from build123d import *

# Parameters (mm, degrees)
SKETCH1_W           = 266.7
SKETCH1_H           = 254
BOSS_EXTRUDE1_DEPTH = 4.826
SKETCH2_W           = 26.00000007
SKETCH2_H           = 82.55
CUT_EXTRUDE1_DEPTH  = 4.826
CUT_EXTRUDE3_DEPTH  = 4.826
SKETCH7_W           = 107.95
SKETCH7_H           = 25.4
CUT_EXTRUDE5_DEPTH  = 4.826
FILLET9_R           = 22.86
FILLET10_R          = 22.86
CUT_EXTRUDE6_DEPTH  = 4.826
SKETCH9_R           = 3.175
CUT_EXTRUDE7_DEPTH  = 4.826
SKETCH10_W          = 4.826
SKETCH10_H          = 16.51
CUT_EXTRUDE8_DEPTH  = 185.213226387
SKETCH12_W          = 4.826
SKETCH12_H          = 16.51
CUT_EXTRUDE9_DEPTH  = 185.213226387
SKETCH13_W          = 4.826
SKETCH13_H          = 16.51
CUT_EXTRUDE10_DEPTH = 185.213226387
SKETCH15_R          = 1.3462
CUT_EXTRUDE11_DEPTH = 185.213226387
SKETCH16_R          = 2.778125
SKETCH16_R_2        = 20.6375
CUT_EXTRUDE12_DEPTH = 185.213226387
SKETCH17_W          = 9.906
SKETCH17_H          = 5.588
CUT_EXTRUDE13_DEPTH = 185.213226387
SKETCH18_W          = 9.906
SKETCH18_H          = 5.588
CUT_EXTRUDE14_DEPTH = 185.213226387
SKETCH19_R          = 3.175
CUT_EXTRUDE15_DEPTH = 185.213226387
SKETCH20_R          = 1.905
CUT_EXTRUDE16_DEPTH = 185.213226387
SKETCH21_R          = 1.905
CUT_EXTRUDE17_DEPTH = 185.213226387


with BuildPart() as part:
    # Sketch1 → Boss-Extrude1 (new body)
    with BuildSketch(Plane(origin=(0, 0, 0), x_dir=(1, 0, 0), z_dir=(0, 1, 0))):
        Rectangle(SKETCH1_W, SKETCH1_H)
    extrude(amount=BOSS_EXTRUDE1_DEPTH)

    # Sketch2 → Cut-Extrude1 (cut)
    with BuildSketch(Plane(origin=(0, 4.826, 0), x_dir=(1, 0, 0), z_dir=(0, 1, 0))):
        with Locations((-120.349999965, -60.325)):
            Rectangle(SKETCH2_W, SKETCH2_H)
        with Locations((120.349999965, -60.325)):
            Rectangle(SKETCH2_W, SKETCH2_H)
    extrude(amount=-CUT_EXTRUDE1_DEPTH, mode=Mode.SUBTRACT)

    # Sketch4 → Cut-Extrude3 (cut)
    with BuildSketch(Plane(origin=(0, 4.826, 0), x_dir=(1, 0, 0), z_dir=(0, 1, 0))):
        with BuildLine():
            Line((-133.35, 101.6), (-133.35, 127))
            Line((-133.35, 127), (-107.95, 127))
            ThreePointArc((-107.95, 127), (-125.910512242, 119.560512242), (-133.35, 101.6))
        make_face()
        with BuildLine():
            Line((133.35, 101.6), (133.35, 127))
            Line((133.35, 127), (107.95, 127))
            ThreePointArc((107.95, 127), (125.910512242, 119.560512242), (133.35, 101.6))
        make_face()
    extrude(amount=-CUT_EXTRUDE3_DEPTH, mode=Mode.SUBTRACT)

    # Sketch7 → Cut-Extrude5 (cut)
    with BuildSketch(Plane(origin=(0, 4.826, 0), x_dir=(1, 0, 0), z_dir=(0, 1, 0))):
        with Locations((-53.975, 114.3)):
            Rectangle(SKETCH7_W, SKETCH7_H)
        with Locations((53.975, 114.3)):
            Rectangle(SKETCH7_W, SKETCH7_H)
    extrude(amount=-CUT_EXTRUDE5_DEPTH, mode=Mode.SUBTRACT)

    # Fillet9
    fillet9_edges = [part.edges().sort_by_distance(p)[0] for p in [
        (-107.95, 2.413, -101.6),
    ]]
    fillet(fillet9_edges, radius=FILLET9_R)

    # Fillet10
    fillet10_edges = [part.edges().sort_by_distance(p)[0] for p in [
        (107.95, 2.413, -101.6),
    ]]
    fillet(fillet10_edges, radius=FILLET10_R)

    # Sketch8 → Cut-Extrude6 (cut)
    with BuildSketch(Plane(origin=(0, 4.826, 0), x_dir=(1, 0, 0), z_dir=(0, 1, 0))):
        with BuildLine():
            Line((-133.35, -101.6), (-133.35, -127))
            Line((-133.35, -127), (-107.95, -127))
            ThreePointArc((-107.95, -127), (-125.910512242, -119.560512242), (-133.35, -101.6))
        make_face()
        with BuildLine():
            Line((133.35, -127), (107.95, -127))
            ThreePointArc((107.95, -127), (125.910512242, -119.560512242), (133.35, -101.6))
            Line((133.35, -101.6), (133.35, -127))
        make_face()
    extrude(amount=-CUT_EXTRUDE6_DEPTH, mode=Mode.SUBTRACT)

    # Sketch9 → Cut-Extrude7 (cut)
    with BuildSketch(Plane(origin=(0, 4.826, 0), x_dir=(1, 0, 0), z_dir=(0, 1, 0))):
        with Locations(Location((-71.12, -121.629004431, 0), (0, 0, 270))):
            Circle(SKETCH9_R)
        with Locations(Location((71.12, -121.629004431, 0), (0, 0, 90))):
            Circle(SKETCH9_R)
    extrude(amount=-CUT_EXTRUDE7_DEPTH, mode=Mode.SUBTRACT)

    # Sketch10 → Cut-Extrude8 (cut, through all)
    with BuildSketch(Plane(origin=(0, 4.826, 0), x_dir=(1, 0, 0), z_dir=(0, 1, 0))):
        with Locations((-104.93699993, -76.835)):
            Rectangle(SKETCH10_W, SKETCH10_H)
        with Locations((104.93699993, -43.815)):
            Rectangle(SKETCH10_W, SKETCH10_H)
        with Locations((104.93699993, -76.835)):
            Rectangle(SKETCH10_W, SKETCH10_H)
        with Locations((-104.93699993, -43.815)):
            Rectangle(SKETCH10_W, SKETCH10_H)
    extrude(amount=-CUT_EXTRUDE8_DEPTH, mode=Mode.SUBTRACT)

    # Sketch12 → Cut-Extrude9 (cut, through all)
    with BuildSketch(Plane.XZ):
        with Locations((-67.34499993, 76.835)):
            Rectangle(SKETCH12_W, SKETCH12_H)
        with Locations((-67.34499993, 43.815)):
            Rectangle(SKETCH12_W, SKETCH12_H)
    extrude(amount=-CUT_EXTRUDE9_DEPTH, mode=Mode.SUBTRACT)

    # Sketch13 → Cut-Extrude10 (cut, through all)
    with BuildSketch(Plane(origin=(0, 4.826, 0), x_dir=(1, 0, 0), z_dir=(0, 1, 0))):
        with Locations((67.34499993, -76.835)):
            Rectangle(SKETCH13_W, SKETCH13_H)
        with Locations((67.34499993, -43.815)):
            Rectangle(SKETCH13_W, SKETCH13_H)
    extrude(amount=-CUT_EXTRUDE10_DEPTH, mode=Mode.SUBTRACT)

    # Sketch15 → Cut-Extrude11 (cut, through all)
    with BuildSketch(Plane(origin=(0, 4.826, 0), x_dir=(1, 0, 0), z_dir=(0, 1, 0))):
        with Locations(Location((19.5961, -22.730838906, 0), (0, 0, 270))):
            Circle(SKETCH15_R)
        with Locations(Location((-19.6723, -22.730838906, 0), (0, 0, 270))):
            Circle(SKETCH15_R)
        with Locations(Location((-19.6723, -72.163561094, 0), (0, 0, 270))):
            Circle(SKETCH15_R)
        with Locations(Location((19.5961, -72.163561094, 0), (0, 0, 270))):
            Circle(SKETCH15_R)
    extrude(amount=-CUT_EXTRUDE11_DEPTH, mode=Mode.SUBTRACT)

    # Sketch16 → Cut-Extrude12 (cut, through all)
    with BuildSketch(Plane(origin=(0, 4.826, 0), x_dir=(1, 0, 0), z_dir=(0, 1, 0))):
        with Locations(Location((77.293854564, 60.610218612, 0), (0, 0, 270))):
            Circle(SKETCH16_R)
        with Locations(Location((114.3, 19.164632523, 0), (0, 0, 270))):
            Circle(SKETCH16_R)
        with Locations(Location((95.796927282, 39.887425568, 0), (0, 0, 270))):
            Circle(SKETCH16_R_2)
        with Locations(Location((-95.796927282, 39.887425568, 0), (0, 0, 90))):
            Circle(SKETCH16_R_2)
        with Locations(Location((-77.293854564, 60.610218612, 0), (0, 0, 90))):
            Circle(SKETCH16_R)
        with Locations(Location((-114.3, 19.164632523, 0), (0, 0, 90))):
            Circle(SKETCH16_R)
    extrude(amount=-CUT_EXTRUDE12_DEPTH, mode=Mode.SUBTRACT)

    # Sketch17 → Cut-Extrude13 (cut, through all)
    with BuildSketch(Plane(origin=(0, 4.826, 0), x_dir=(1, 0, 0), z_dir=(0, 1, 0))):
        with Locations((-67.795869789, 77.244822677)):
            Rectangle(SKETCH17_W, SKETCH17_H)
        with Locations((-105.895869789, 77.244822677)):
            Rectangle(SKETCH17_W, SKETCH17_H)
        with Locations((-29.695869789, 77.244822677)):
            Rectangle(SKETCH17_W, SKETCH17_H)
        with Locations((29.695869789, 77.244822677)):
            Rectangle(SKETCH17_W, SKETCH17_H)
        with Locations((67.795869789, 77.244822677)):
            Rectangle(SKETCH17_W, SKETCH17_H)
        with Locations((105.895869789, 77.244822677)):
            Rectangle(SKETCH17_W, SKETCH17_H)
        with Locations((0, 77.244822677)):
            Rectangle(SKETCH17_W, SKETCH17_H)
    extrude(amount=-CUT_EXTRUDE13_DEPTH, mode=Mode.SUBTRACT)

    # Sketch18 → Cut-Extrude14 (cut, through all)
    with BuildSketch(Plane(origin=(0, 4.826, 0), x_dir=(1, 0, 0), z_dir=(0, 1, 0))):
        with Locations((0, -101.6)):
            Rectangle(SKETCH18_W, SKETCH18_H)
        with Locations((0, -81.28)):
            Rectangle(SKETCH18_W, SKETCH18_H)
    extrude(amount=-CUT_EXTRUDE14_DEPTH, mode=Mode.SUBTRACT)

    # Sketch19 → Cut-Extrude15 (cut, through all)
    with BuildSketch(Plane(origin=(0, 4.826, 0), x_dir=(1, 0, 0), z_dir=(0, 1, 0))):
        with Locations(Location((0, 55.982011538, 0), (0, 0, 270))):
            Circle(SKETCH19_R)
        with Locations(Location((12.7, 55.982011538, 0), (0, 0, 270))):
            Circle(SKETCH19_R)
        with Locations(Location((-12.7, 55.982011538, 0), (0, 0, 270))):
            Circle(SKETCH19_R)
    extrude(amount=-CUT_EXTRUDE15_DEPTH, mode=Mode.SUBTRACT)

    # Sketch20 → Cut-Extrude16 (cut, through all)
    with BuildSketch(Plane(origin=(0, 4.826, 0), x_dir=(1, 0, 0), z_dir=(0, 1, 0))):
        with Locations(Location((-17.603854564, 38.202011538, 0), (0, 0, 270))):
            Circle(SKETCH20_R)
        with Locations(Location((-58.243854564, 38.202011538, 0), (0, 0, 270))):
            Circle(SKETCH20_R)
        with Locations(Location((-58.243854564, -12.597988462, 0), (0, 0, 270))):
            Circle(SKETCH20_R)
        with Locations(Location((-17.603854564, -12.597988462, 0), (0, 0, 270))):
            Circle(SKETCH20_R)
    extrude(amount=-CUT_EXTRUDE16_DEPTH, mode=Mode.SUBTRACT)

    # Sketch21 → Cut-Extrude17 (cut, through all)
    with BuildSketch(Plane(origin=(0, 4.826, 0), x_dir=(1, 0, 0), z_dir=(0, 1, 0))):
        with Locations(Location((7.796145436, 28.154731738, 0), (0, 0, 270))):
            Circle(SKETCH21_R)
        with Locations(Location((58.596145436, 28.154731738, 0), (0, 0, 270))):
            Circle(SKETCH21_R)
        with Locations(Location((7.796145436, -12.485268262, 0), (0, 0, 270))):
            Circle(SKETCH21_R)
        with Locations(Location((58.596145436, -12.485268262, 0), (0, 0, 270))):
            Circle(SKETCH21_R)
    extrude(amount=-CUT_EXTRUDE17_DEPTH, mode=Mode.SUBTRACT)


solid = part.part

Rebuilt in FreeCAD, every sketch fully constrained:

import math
import FreeCAD as App
import Part
import Sketcher

V = App.Vector
Q = App.Units.Quantity


def edges_at(feature, points):
    """Names of the edges that pass closest to the given points."""
    edges = feature.Shape.Edges
    near = lambda p: min(range(len(edges)), key=lambda i: edges[i].distToShape(Part.Vertex(*p))[0])
    return sorted({f"Edge{near(p) + 1}" for p in points})

doc = App.newDocument("Part")
body = doc.addObject("PartDesign::Body", "Body")

# Sketch on XZ plane
sketch1 = body.newObject("Sketcher::SketchObject", "Sketch")
sketch1.AttachmentSupport = (doc.getObject("XZ_Plane"), [""])
sketch1.MapMode = "FlatFace"
sketch1.addGeometry([
    Part.LineSegment(V(-133, -127, 0), V(-133, 127, 0)),
    Part.LineSegment(V(-133, 127, 0), V(133, 127, 0)),
    Part.LineSegment(V(133, 127, 0), V(133, -127, 0)),
    Part.LineSegment(V(133, -127, 0), V(-133, -127, 0)),
], False)
sketch1.addConstraint([
    Sketcher.Constraint("Coincident", 0, 2, 1, 1),
    Sketcher.Constraint("Coincident", 1, 2, 2, 1),
    Sketcher.Constraint("Coincident", 2, 2, 3, 1),
    Sketcher.Constraint("Coincident", 3, 2, 0, 1),
    Sketcher.Constraint("Vertical", 0),
    Sketcher.Constraint("Horizontal", 1),
    Sketcher.Constraint("Vertical", 2),
    Sketcher.Constraint("Horizontal", 3),
    Sketcher.Constraint("Symmetric", 0, 2, 2, 2, -1, 1),
    Sketcher.Constraint("DistanceY", 0, 1, 0, 2, Q("10 in")),
    Sketcher.Constraint("DistanceX", 1, 1, 1, 2, Q("10.5 in")),
])
pad1 = body.newObject("PartDesign::Pad", "Pad")
pad1.Profile = sketch1
pad1.Length = Q("0.19 in")
pad1.Reversed = True

# Sketch on XZ plane
sketch2 = body.newObject("Sketcher::SketchObject", "Sketch001")
sketch2.AttachmentSupport = (doc.getObject("XZ_Plane"), [""])
sketch2.MapMode = "FlatFace"
sketch2.AttachmentOffset = App.Placement(V(0, 0, -0.19 * 25.4), App.Rotation())
sketch2.addGeometry([
    Part.LineSegment(V(-133, 19, 0), V(-133, 102, 0)),  # 0
    Part.LineSegment(V(-133, 102, 0), V(-107, 102, 0)),  # 1
    Part.LineSegment(V(-107, 102, 0), V(-107, 19, 0)),  # 2
    Part.LineSegment(V(-107, 19, 0), V(-133, 19, 0)),  # 3
    Part.LineSegment(V(107, 19, 0), V(107, 102, 0)),  # 4
    Part.LineSegment(V(107, 102, 0), V(133, 102, 0)),  # 5
    Part.LineSegment(V(133, 102, 0), V(133, 19, 0)),  # 6
    Part.LineSegment(V(133, 19, 0), V(107, 19, 0)),  # 7
], False)
sketch2.addConstraint([
    Sketcher.Constraint("Coincident", 0, 2, 1, 1),
    Sketcher.Constraint("Coincident", 1, 2, 2, 1),
    Sketcher.Constraint("Coincident", 2, 2, 3, 1),
    Sketcher.Constraint("Coincident", 3, 2, 0, 1),
    Sketcher.Constraint("Coincident", 4, 2, 5, 1),
    Sketcher.Constraint("Coincident", 5, 2, 6, 1),
    Sketcher.Constraint("Coincident", 6, 2, 7, 1),
    Sketcher.Constraint("Coincident", 7, 2, 4, 1),
    Sketcher.Constraint("Vertical", 0),
    Sketcher.Constraint("Horizontal", 1),
    Sketcher.Constraint("Vertical", 2),
    Sketcher.Constraint("Horizontal", 3),
    Sketcher.Constraint("Vertical", 4),
    Sketcher.Constraint("Horizontal", 5),
    Sketcher.Constraint("Vertical", 6),
    Sketcher.Constraint("Horizontal", 7),
    Sketcher.Constraint("Symmetric", 1, 2, 4, 2, -2),
    Sketcher.Constraint("Symmetric", 3, 2, 6, 2, -2),
    Sketcher.Constraint("DistanceY", -1, 1, 0, 2, Q("4 in")),
    Sketcher.Constraint("DistanceY", 0, 1, 0, 2, Q("3.25 in")),
    Sketcher.Constraint("DistanceX", 0, 2, 5, 2, Q("10.5 in")),
    Sketcher.Constraint("DistanceX", 1, 1, 1, 2, Q("26 mm")),
])
pocket1 = body.newObject("PartDesign::Pocket", "Pocket")
pocket1.Profile = sketch2
pocket1.Length = Q("0.19 in")
pocket1.Reversed = True

# Sketch on XZ plane
sketch3 = body.newObject("Sketcher::SketchObject", "Sketch002")
sketch3.AttachmentSupport = (doc.getObject("XZ_Plane"), [""])
sketch3.MapMode = "FlatFace"
sketch3.AttachmentOffset = App.Placement(V(0, 0, -0.19 * 25.4), App.Rotation())
sketch3.addGeometry([
    Part.LineSegment(V(-133, -127, 0), V(-133, -102, 0)),  # 0
    Part.ArcOfCircle(Part.Circle(V(-108, -102, 0), V(0, 0, 1), 25), math.radians(180), math.radians(270)),  # 1
    Part.LineSegment(V(-108, -127, 0), V(-133, -127, 0)),  # 2
    Part.LineSegment(V(133, -102, 0), V(133, -127, 0)),  # 3
    Part.LineSegment(V(133, -127, 0), V(108, -127, 0)),  # 4
    Part.ArcOfCircle(Part.Circle(V(108, -102, 0), V(0, 0, 1), 25), math.radians(-90), math.radians(0)),  # 5
], False)
sketch3.addConstraint([
    Sketcher.Constraint("Tangent", 0, 2, 1, 1),
    Sketcher.Constraint("Tangent", 1, 2, 2, 1),
    Sketcher.Constraint("Coincident", 2, 2, 0, 1),
    Sketcher.Constraint("Coincident", 3, 2, 4, 1),
    Sketcher.Constraint("Tangent", 4, 2, 5, 1),
    Sketcher.Constraint("Tangent", 5, 2, 3, 1),
    Sketcher.Constraint("Vertical", 0),
    Sketcher.Constraint("Horizontal", 2),
    Sketcher.Constraint("Vertical", 3),
    Sketcher.Constraint("Horizontal", 4),
    Sketcher.Constraint("Equal", 1, 5),
    Sketcher.Constraint("Symmetric", 1, 3, 5, 3, -2),
    Sketcher.Constraint("Radius", 1, Q("1 in")),
    Sketcher.Constraint("DistanceY", 1, 3, -1, 1, Q("4 in")),
    Sketcher.Constraint("DistanceX", 1, 3, 5, 3, Q("8.5 in")),
])
pocket2 = body.newObject("PartDesign::Pocket", "Pocket001")
pocket2.Profile = sketch3
pocket2.Length = Q("0.19 in")
pocket2.Reversed = True

# Sketch on XZ plane
sketch4 = body.newObject("Sketcher::SketchObject", "Sketch003")
sketch4.AttachmentSupport = (doc.getObject("XZ_Plane"), [""])
sketch4.MapMode = "FlatFace"
sketch4.AttachmentOffset = App.Placement(V(0, 0, -0.19 * 25.4), App.Rotation())
sketch4.addGeometry([
    Part.LineSegment(V(-108, -127, 0), V(-108, -102, 0)),
    Part.LineSegment(V(-108, -102, 0), V(108, -102, 0)),
    Part.LineSegment(V(108, -102, 0), V(108, -127, 0)),
    Part.LineSegment(V(108, -127, 0), V(-108, -127, 0)),
], False)
sketch4.addConstraint([
    Sketcher.Constraint("Coincident", 0, 2, 1, 1),
    Sketcher.Constraint("Coincident", 1, 2, 2, 1),
    Sketcher.Constraint("Coincident", 2, 2, 3, 1),
    Sketcher.Constraint("Coincident", 3, 2, 0, 1),
    Sketcher.Constraint("Vertical", 0),
    Sketcher.Constraint("Horizontal", 1),
    Sketcher.Constraint("Vertical", 2),
    Sketcher.Constraint("Horizontal", 3),
    Sketcher.Constraint("DistanceY", 0, 1, 0, 2, Q("1 in")),
    Sketcher.Constraint("DistanceX", 1, 1, 1, 2, Q("8.5 in")),
    Sketcher.Constraint("DistanceY", 0, 2, -1, 1, Q("4 in")),
    Sketcher.Constraint("DistanceX", 0, 2, -1, 1, Q("4.25 in")),
])
pocket3 = body.newObject("PartDesign::Pocket", "Pocket002")
pocket3.Profile = sketch4
pocket3.Length = Q("0.19 in")
pocket3.Reversed = True
doc.recompute()

fillet = body.newObject("PartDesign::Fillet", "Fillet")
fillet.Base = (pocket3, edges_at(pocket3, [(-107.95, 2.413, -101.6)]))
fillet.Radius = Q("0.9 in")
doc.recompute()

fillet2 = body.newObject("PartDesign::Fillet", "Fillet001")
fillet2.Base = (fillet, edges_at(fillet, [(107.95, 2.413, -101.6)]))
fillet2.Radius = Q("0.9 in")

# Sketch on XZ plane
sketch5 = body.newObject("Sketcher::SketchObject", "Sketch004")
sketch5.AttachmentSupport = (doc.getObject("XZ_Plane"), [""])
sketch5.MapMode = "FlatFace"
sketch5.AttachmentOffset = App.Placement(V(0, 0, -0.19 * 25.4), App.Rotation())
sketch5.addGeometry([
    Part.LineSegment(V(-133, 102, 0), V(-133, 127, 0)),  # 0
    Part.LineSegment(V(-133, 127, 0), V(-108, 127, 0)),  # 1
    Part.ArcOfCircle(Part.Circle(V(-108, 102, 0), V(0, 0, 1), 25), math.radians(90), math.radians(180)),  # 2
    Part.LineSegment(V(108, 127, 0), V(133, 127, 0)),  # 3
    Part.LineSegment(V(133, 127, 0), V(133, 102, 0)),  # 4
    Part.ArcOfCircle(Part.Circle(V(108, 102, 0), V(0, 0, 1), 25), math.radians(0), math.radians(90)),  # 5
], False)
sketch5.addConstraint([
    Sketcher.Constraint("Coincident", 0, 2, 1, 1),
    Sketcher.Constraint("Tangent", 1, 2, 2, 1),
    Sketcher.Constraint("Tangent", 2, 2, 0, 1),
    Sketcher.Constraint("Coincident", 3, 2, 4, 1),
    Sketcher.Constraint("Tangent", 4, 2, 5, 1),
    Sketcher.Constraint("Tangent", 5, 2, 3, 1),
    Sketcher.Constraint("Vertical", 0),
    Sketcher.Constraint("Horizontal", 1),
    Sketcher.Constraint("Horizontal", 3),
    Sketcher.Constraint("Vertical", 4),
    Sketcher.Constraint("Equal", 2, 5),
    Sketcher.Constraint("Symmetric", 2, 3, 5, 3, -2),
    Sketcher.Constraint("Radius", 2, Q("1 in")),
    Sketcher.Constraint("DistanceY", -1, 1, 2, 3, Q("4 in")),
    Sketcher.Constraint("DistanceX", 2, 3, 5, 3, Q("8.5 in")),
])
pocket4 = body.newObject("PartDesign::Pocket", "Pocket003")
pocket4.Profile = sketch5
pocket4.Length = Q("0.19 in")
pocket4.Reversed = True

# Sketch on XZ plane
sketch6 = body.newObject("Sketcher::SketchObject", "Sketch005")
sketch6.AttachmentSupport = (doc.getObject("XZ_Plane"), [""])
sketch6.MapMode = "FlatFace"
sketch6.AttachmentOffset = App.Placement(V(0, 0, -0.19 * 25.4), App.Rotation())
sketch6.addGeometry([
    Part.Circle(V(-71.1, 121.6, 0), V(0, 0, 1), 3.2),
    Part.Circle(V(71.1, 121.6, 0), V(0, 0, 1), 3.2),
], False)
sketch6.addConstraint([
    Sketcher.Constraint("Equal", 0, 1),
    Sketcher.Constraint("Symmetric", 0, 3, 1, 3, -2),
    Sketcher.Constraint("Diameter", 0, Q("0.25 in")),
    Sketcher.Constraint("DistanceX", 0, 3, -1, 1, Q("2.8 in")),
    Sketcher.Constraint("DistanceY", -1, 1, 0, 3, Q("121.629004 mm")),
])
pocket5 = body.newObject("PartDesign::Pocket", "Pocket004")
pocket5.Profile = sketch6
pocket5.Length = Q("0.19 in")
pocket5.Reversed = True

# Sketch on XZ plane
sketch7 = body.newObject("Sketcher::SketchObject", "Sketch006")
sketch7.AttachmentSupport = (doc.getObject("XZ_Plane"), [""])
sketch7.MapMode = "FlatFace"
sketch7.AttachmentOffset = App.Placement(V(0, 0, -0.19 * 25.4), App.Rotation())
sketch7.addGeometry([
    Part.LineSegment(V(-107.3, 68.6, 0), V(-107.3, 85.1, 0)),  # 0
    Part.LineSegment(V(-107.3, 85.1, 0), V(-102.5, 85.1, 0)),  # 1
    Part.LineSegment(V(-102.5, 85.1, 0), V(-102.5, 68.6, 0)),  # 2
    Part.LineSegment(V(-102.5, 68.6, 0), V(-107.3, 68.6, 0)),  # 3
    Part.LineSegment(V(102.5, 35.6, 0), V(102.5, 52.1, 0)),  # 4
    Part.LineSegment(V(102.5, 52.1, 0), V(107.3, 52.1, 0)),  # 5
    Part.LineSegment(V(107.3, 52.1, 0), V(107.3, 35.6, 0)),  # 6
    Part.LineSegment(V(107.3, 35.6, 0), V(102.5, 35.6, 0)),  # 7
    Part.LineSegment(V(102.5, 68.6, 0), V(102.5, 85.1, 0)),  # 8
    Part.LineSegment(V(102.5, 85.1, 0), V(107.3, 85.1, 0)),  # 9
    Part.LineSegment(V(107.3, 85.1, 0), V(107.3, 68.6, 0)),  # 10
    Part.LineSegment(V(107.3, 68.6, 0), V(102.5, 68.6, 0)),  # 11
    Part.LineSegment(V(-107.3, 35.6, 0), V(-107.3, 52.1, 0)),  # 12
    Part.LineSegment(V(-107.3, 52.1, 0), V(-102.5, 52.1, 0)),  # 13
    Part.LineSegment(V(-102.5, 52.1, 0), V(-102.5, 35.6, 0)),  # 14
    Part.LineSegment(V(-102.5, 35.6, 0), V(-107.3, 35.6, 0)),  # 15
], False)
sketch7.addConstraint([
    Sketcher.Constraint("Coincident", 0, 2, 1, 1),
    Sketcher.Constraint("Coincident", 1, 2, 2, 1),
    Sketcher.Constraint("Coincident", 2, 2, 3, 1),
    Sketcher.Constraint("Coincident", 3, 2, 0, 1),
    Sketcher.Constraint("Coincident", 4, 2, 5, 1),
    Sketcher.Constraint("Coincident", 5, 2, 6, 1),
    Sketcher.Constraint("Coincident", 6, 2, 7, 1),
    Sketcher.Constraint("Coincident", 7, 2, 4, 1),
    Sketcher.Constraint("Coincident", 8, 2, 9, 1),
    Sketcher.Constraint("Coincident", 9, 2, 10, 1),
    Sketcher.Constraint("Coincident", 10, 2, 11, 1),
    Sketcher.Constraint("Coincident", 11, 2, 8, 1),
    Sketcher.Constraint("Coincident", 12, 2, 13, 1),
    Sketcher.Constraint("Coincident", 13, 2, 14, 1),
    Sketcher.Constraint("Coincident", 14, 2, 15, 1),
    Sketcher.Constraint("Coincident", 15, 2, 12, 1),
    Sketcher.Constraint("Vertical", 0),
    Sketcher.Constraint("Horizontal", 1),
    Sketcher.Constraint("Vertical", 2),
    Sketcher.Constraint("Horizontal", 3),
    Sketcher.Constraint("Vertical", 4),
    Sketcher.Constraint("Horizontal", 5),
    Sketcher.Constraint("Vertical", 6),
    Sketcher.Constraint("Horizontal", 7),
    Sketcher.Constraint("Vertical", 8),
    Sketcher.Constraint("Horizontal", 9),
    Sketcher.Constraint("Vertical", 10),
    Sketcher.Constraint("Horizontal", 11),
    Sketcher.Constraint("Vertical", 12),
    Sketcher.Constraint("Horizontal", 13),
    Sketcher.Constraint("Vertical", 14),
    Sketcher.Constraint("Horizontal", 15),
    Sketcher.Constraint("Symmetric", 1, 2, 8, 2, -2),
    Sketcher.Constraint("Symmetric", 3, 2, 10, 2, -2),
    Sketcher.Constraint("Symmetric", 5, 2, 12, 2, -2),
    Sketcher.Constraint("Symmetric", 7, 2, 14, 2, -2),
    Sketcher.Constraint("Vertical", 7, 2, 8, 2),
    Sketcher.Constraint("Vertical", 6, 2, 9, 2),
    Sketcher.Constraint("Equal", 2, 4),
    Sketcher.Constraint("DistanceX", 1, 1, 1, 2, Q("0.19 in")),
    Sketcher.Constraint("DistanceY", 0, 1, 0, 2, Q("0.65 in")),
    Sketcher.Constraint("DistanceY", -1, 1, 2, 2, Q("2.7 in")),
    Sketcher.Constraint("DistanceY", -1, 1, 6, 2, Q("1.4 in")),
    Sketcher.Constraint("DistanceX", 0, 2, -1, 1, Q("107.35 mm")),
])
pocket6 = body.newObject("PartDesign::Pocket", "Pocket005")
pocket6.Profile = sketch7
pocket6.Type = "ThroughAll"
pocket6.Reversed = True

# Sketch on XZ plane
sketch8 = body.newObject("Sketcher::SketchObject", "Sketch007")
sketch8.AttachmentSupport = (doc.getObject("XZ_Plane"), [""])
sketch8.MapMode = "FlatFace"
sketch8.addGeometry([
    Part.LineSegment(V(-69.8, 85.1, 0), V(-69.8, 68.6, 0)),  # 0
    Part.LineSegment(V(-69.8, 68.6, 0), V(-64.9, 68.6, 0)),  # 1
    Part.LineSegment(V(-64.9, 68.6, 0), V(-64.9, 85.1, 0)),  # 2
    Part.LineSegment(V(-64.9, 85.1, 0), V(-69.8, 85.1, 0)),  # 3
    Part.LineSegment(V(-69.8, 52.1, 0), V(-69.8, 35.6, 0)),  # 4
    Part.LineSegment(V(-69.8, 35.6, 0), V(-64.9, 35.6, 0)),  # 5
    Part.LineSegment(V(-64.9, 35.6, 0), V(-64.9, 52.1, 0)),  # 6
    Part.LineSegment(V(-64.9, 52.1, 0), V(-69.8, 52.1, 0)),  # 7
], False)
sketch8.addConstraint([
    Sketcher.Constraint("Coincident", 0, 2, 1, 1),
    Sketcher.Constraint("Coincident", 1, 2, 2, 1),
    Sketcher.Constraint("Coincident", 2, 2, 3, 1),
    Sketcher.Constraint("Coincident", 3, 2, 0, 1),
    Sketcher.Constraint("Coincident", 4, 2, 5, 1),
    Sketcher.Constraint("Coincident", 5, 2, 6, 1),
    Sketcher.Constraint("Coincident", 6, 2, 7, 1),
    Sketcher.Constraint("Coincident", 7, 2, 4, 1),
    Sketcher.Constraint("Vertical", 0),
    Sketcher.Constraint("Horizontal", 1),
    Sketcher.Constraint("Vertical", 2),
    Sketcher.Constraint("Horizontal", 3),
    Sketcher.Constraint("Vertical", 4),
    Sketcher.Constraint("Horizontal", 5),
    Sketcher.Constraint("Vertical", 6),
    Sketcher.Constraint("Horizontal", 7),
    Sketcher.Constraint("Vertical", 3, 2, 4, 2),
    Sketcher.Constraint("Vertical", 2, 2, 5, 2),
    Sketcher.Constraint("Equal", 2, 4),
    Sketcher.Constraint("DistanceX", 1, 1, 1, 2, Q("0.19 in")),
    Sketcher.Constraint("DistanceY", 0, 2, 0, 1, Q("0.65 in")),
    Sketcher.Constraint("DistanceY", -1, 1, 0, 2, Q("2.7 in")),
    Sketcher.Constraint("DistanceY", -1, 1, 4, 2, Q("1.4 in")),
    Sketcher.Constraint("DistanceX", 0, 2, -1, 1, Q("69.758 mm")),
])
pocket7 = body.newObject("PartDesign::Pocket", "Pocket006")
pocket7.Profile = sketch8
pocket7.Type = "ThroughAll"

# Sketch on XZ plane
sketch9 = body.newObject("Sketcher::SketchObject", "Sketch008")
sketch9.AttachmentSupport = (doc.getObject("XZ_Plane"), [""])
sketch9.MapMode = "FlatFace"
sketch9.AttachmentOffset = App.Placement(V(0, 0, -0.19 * 25.4), App.Rotation())
sketch9.addGeometry([
    Part.LineSegment(V(64.9, 68.6, 0), V(64.9, 85.1, 0)),  # 0
    Part.LineSegment(V(64.9, 85.1, 0), V(69.8, 85.1, 0)),  # 1
    Part.LineSegment(V(69.8, 85.1, 0), V(69.8, 68.6, 0)),  # 2
    Part.LineSegment(V(69.8, 68.6, 0), V(64.9, 68.6, 0)),  # 3
    Part.LineSegment(V(64.9, 35.6, 0), V(64.9, 52.1, 0)),  # 4
    Part.LineSegment(V(64.9, 52.1, 0), V(69.8, 52.1, 0)),  # 5
    Part.LineSegment(V(69.8, 52.1, 0), V(69.8, 35.6, 0)),  # 6
    Part.LineSegment(V(69.8, 35.6, 0), V(64.9, 35.6, 0)),  # 7
], False)
sketch9.addConstraint([
    Sketcher.Constraint("Coincident", 0, 2, 1, 1),
    Sketcher.Constraint("Coincident", 1, 2, 2, 1),
    Sketcher.Constraint("Coincident", 2, 2, 3, 1),
    Sketcher.Constraint("Coincident", 3, 2, 0, 1),
    Sketcher.Constraint("Coincident", 4, 2, 5, 1),
    Sketcher.Constraint("Coincident", 5, 2, 6, 1),
    Sketcher.Constraint("Coincident", 6, 2, 7, 1),
    Sketcher.Constraint("Coincident", 7, 2, 4, 1),
    Sketcher.Constraint("Vertical", 0),
    Sketcher.Constraint("Horizontal", 1),
    Sketcher.Constraint("Vertical", 2),
    Sketcher.Constraint("Horizontal", 3),
    Sketcher.Constraint("Vertical", 4),
    Sketcher.Constraint("Horizontal", 5),
    Sketcher.Constraint("Vertical", 6),
    Sketcher.Constraint("Horizontal", 7),
    Sketcher.Constraint("Vertical", 3, 2, 4, 2),
    Sketcher.Constraint("Vertical", 2, 2, 5, 2),
    Sketcher.Constraint("Equal", 2, 4),
    Sketcher.Constraint("DistanceX", 1, 1, 1, 2, Q("0.19 in")),
    Sketcher.Constraint("DistanceY", 0, 1, 0, 2, Q("0.65 in")),
    Sketcher.Constraint("DistanceY", -1, 1, 2, 2, Q("2.7 in")),
    Sketcher.Constraint("DistanceY", -1, 1, 6, 2, Q("1.4 in")),
    Sketcher.Constraint("DistanceX", -1, 1, 0, 2, Q("64.932 mm")),
])
pocket8 = body.newObject("PartDesign::Pocket", "Pocket007")
pocket8.Profile = sketch9
pocket8.Type = "ThroughAll"
pocket8.Reversed = True

# Sketch on XZ plane
sketch10 = body.newObject("Sketcher::SketchObject", "Sketch009")
sketch10.AttachmentSupport = (doc.getObject("XZ_Plane"), [""])
sketch10.MapMode = "FlatFace"
sketch10.AttachmentOffset = App.Placement(V(0, 0, -0.19 * 25.4), App.Rotation())
sketch10.addGeometry([
    Part.Circle(V(19.6, 22.7, 0), V(0, 0, 1), 1.3),
    Part.Circle(V(-19.7, 22.7, 0), V(0, 0, 1), 1.3),
    Part.Circle(V(-19.7, 72.2, 0), V(0, 0, 1), 1.3),
    Part.Circle(V(19.6, 72.2, 0), V(0, 0, 1), 1.3),
], False)
sketch10.addConstraint([
    Sketcher.Constraint("Equal", 0, 1),
    Sketcher.Constraint("Equal", 1, 2),
    Sketcher.Constraint("Equal", 2, 3),
    Sketcher.Constraint("Horizontal", 0, 3, 1, 3),
    Sketcher.Constraint("Horizontal", 2, 3, 3, 3),
    Sketcher.Constraint("Vertical", 1, 3, 2, 3),
    Sketcher.Constraint("Vertical", 0, 3, 3, 3),
    Sketcher.Constraint("Diameter", 0, Q("0.106 in")),
    Sketcher.Constraint("DistanceX", 1, 3, 0, 3, Q("1.546 in")),
    Sketcher.Constraint("DistanceX", -1, 1, 0, 3, Q("0.7715 in")),
    Sketcher.Constraint("DistanceY", -1, 1, 0, 3, Q("22.730839 mm")),
    Sketcher.Constraint("DistanceY", -1, 1, 2, 3, Q("72.163561 mm")),
])
pocket9 = body.newObject("PartDesign::Pocket", "Pocket008")
pocket9.Profile = sketch10
pocket9.Type = "ThroughAll"
pocket9.Reversed = True

# Sketch on XZ plane
sketch11 = body.newObject("Sketcher::SketchObject", "Sketch010")
sketch11.AttachmentSupport = (doc.getObject("XZ_Plane"), [""])
sketch11.MapMode = "FlatFace"
sketch11.AttachmentOffset = App.Placement(V(0, 0, -0.19 * 25.4), App.Rotation())
sketch11.addGeometry([
    Part.Circle(V(77.3, -60.6, 0), V(0, 0, 1), 2.8),  # 0
    Part.Circle(V(114.3, -19.2, 0), V(0, 0, 1), 2.8),  # 1
    Part.Circle(V(95.8, -39.9, 0), V(0, 0, 1), 20.6),  # 2
    Part.Circle(V(-95.8, -39.9, 0), V(0, 0, 1), 20.6),  # 3
    Part.Circle(V(-77.3, -60.6, 0), V(0, 0, 1), 2.8),  # 4
    Part.Circle(V(-114.3, -19.2, 0), V(0, 0, 1), 2.8),  # 5
], False)
sketch11.addConstraint([
    Sketcher.Constraint("Equal", 0, 1),
    Sketcher.Constraint("Equal", 2, 3),
    Sketcher.Constraint("Equal", 1, 4),
    Sketcher.Constraint("Equal", 4, 5),
    Sketcher.Constraint("Symmetric", 2, 3, 3, 3, -2),
    Sketcher.Constraint("Symmetric", 0, 3, 4, 3, -2),
    Sketcher.Constraint("Symmetric", 1, 3, 5, 3, -2),
    Sketcher.Constraint("Diameter", 0, Q("0.21875 in")),
    Sketcher.Constraint("Diameter", 2, Q("1.625 in")),
    Sketcher.Constraint("DistanceX", 5, 3, 1, 3, Q("9 in")),
    Sketcher.Constraint("DistanceY", 0, 3, -1, 1, Q("60.610219 mm")),
    Sketcher.Constraint("DistanceX", 3, 3, 0, 3, Q("173.090782 mm")),
    Sketcher.Constraint("DistanceX", 4, 3, 0, 3, Q("154.587709 mm")),
    Sketcher.Constraint("DistanceY", 1, 3, -1, 1, Q("19.164633 mm")),
    Sketcher.Constraint("DistanceY", 2, 3, -1, 1, Q("39.887426 mm")),
])
pocket10 = body.newObject("PartDesign::Pocket", "Pocket009")
pocket10.Profile = sketch11
pocket10.Type = "ThroughAll"
pocket10.Reversed = True

# Sketch on XZ plane
sketch12 = body.newObject("Sketcher::SketchObject", "Sketch011")
sketch12.AttachmentSupport = (doc.getObject("XZ_Plane"), [""])
sketch12.MapMode = "FlatFace"
sketch12.AttachmentOffset = App.Placement(V(0, 0, -0.19 * 25.4), App.Rotation())
sketch12.addGeometry([
    Part.LineSegment(V(-73, -80, 0), V(-73, -74, 0)),  # 0
    Part.LineSegment(V(-73, -74, 0), V(-63, -74, 0)),  # 1
    Part.LineSegment(V(-63, -74, 0), V(-63, -80, 0)),  # 2
    Part.LineSegment(V(-63, -80, 0), V(-73, -80, 0)),  # 3
    Part.LineSegment(V(-111, -80, 0), V(-111, -74, 0)),  # 4
    Part.LineSegment(V(-111, -74, 0), V(-101, -74, 0)),  # 5
    Part.LineSegment(V(-101, -74, 0), V(-101, -80, 0)),  # 6
    Part.LineSegment(V(-101, -80, 0), V(-111, -80, 0)),  # 7
    Part.LineSegment(V(-35, -80, 0), V(-35, -74, 0)),  # 8
    Part.LineSegment(V(-35, -74, 0), V(-25, -74, 0)),  # 9
    Part.LineSegment(V(-25, -74, 0), V(-25, -80, 0)),  # 10
    Part.LineSegment(V(-25, -80, 0), V(-35, -80, 0)),  # 11
    Part.LineSegment(V(25, -80, 0), V(25, -74, 0)),  # 12
    Part.LineSegment(V(25, -74, 0), V(35, -74, 0)),  # 13
    Part.LineSegment(V(35, -74, 0), V(35, -80, 0)),  # 14
    Part.LineSegment(V(35, -80, 0), V(25, -80, 0)),  # 15
    Part.LineSegment(V(63, -80, 0), V(63, -74, 0)),  # 16
    Part.LineSegment(V(63, -74, 0), V(73, -74, 0)),  # 17
    Part.LineSegment(V(73, -74, 0), V(73, -80, 0)),  # 18
    Part.LineSegment(V(73, -80, 0), V(63, -80, 0)),  # 19
    Part.LineSegment(V(101, -80, 0), V(101, -74, 0)),  # 20
    Part.LineSegment(V(101, -74, 0), V(111, -74, 0)),  # 21
    Part.LineSegment(V(111, -74, 0), V(111, -80, 0)),  # 22
    Part.LineSegment(V(111, -80, 0), V(101, -80, 0)),  # 23
    Part.LineSegment(V(-5, -80, 0), V(-5, -74, 0)),  # 24
    Part.LineSegment(V(-5, -74, 0), V(5, -74, 0)),  # 25
    Part.LineSegment(V(5, -74, 0), V(5, -80, 0)),  # 26
    Part.LineSegment(V(5, -80, 0), V(-5, -80, 0)),  # 27
], False)
sketch12.addConstraint([
    Sketcher.Constraint("Coincident", 0, 2, 1, 1),
    Sketcher.Constraint("Coincident", 1, 2, 2, 1),
    Sketcher.Constraint("Coincident", 2, 2, 3, 1),
    Sketcher.Constraint("Coincident", 3, 2, 0, 1),
    Sketcher.Constraint("Coincident", 4, 2, 5, 1),
    Sketcher.Constraint("Coincident", 5, 2, 6, 1),
    Sketcher.Constraint("Coincident", 6, 2, 7, 1),
    Sketcher.Constraint("Coincident", 7, 2, 4, 1),
    Sketcher.Constraint("Coincident", 8, 2, 9, 1),
    Sketcher.Constraint("Coincident", 9, 2, 10, 1),
    Sketcher.Constraint("Coincident", 10, 2, 11, 1),
    Sketcher.Constraint("Coincident", 11, 2, 8, 1),
    Sketcher.Constraint("Coincident", 12, 2, 13, 1),
    Sketcher.Constraint("Coincident", 13, 2, 14, 1),
    Sketcher.Constraint("Coincident", 14, 2, 15, 1),
    Sketcher.Constraint("Coincident", 15, 2, 12, 1),
    Sketcher.Constraint("Coincident", 16, 2, 17, 1),
    Sketcher.Constraint("Coincident", 17, 2, 18, 1),
    Sketcher.Constraint("Coincident", 18, 2, 19, 1),
    Sketcher.Constraint("Coincident", 19, 2, 16, 1),
    Sketcher.Constraint("Coincident", 20, 2, 21, 1),
    Sketcher.Constraint("Coincident", 21, 2, 22, 1),
    Sketcher.Constraint("Coincident", 22, 2, 23, 1),
    Sketcher.Constraint("Coincident", 23, 2, 20, 1),
    Sketcher.Constraint("Coincident", 24, 2, 25, 1),
    Sketcher.Constraint("Coincident", 25, 2, 26, 1),
    Sketcher.Constraint("Coincident", 26, 2, 27, 1),
    Sketcher.Constraint("Coincident", 27, 2, 24, 1),
    Sketcher.Constraint("Vertical", 0),
    Sketcher.Constraint("Horizontal", 1),
    Sketcher.Constraint("Vertical", 2),
    Sketcher.Constraint("Horizontal", 3),
    Sketcher.Constraint("Vertical", 4),
    Sketcher.Constraint("Horizontal", 5),
    Sketcher.Constraint("Vertical", 6),
    Sketcher.Constraint("Horizontal", 7),
    Sketcher.Constraint("Vertical", 8),
    Sketcher.Constraint("Horizontal", 9),
    Sketcher.Constraint("Vertical", 10),
    Sketcher.Constraint("Horizontal", 11),
    Sketcher.Constraint("Vertical", 12),
    Sketcher.Constraint("Horizontal", 13),
    Sketcher.Constraint("Vertical", 14),
    Sketcher.Constraint("Horizontal", 15),
    Sketcher.Constraint("Vertical", 16),
    Sketcher.Constraint("Horizontal", 17),
    Sketcher.Constraint("Vertical", 18),
    Sketcher.Constraint("Horizontal", 19),
    Sketcher.Constraint("Vertical", 20),
    Sketcher.Constraint("Horizontal", 21),
    Sketcher.Constraint("Vertical", 22),
    Sketcher.Constraint("Horizontal", 23),
    Sketcher.Constraint("Vertical", 24),
    Sketcher.Constraint("Horizontal", 25),
    Sketcher.Constraint("Vertical", 26),
    Sketcher.Constraint("Horizontal", 27),
    Sketcher.Constraint("Symmetric", 9, 2, 12, 2, -2),
    Sketcher.Constraint("Symmetric", 11, 2, 14, 2, -2),
    Sketcher.Constraint("Symmetric", 1, 2, 16, 2, -2),
    Sketcher.Constraint("Symmetric", 3, 2, 18, 2, -2),
    Sketcher.Constraint("Symmetric", 5, 2, 20, 2, -2),
    Sketcher.Constraint("Symmetric", 7, 2, 22, 2, -2),
    Sketcher.Constraint("Horizontal", 1, 2, 4, 2),
    Sketcher.Constraint("Horizontal", 3, 2, 6, 2),
    Sketcher.Constraint("Horizontal", 5, 2, 8, 2),
    Sketcher.Constraint("Horizontal", 7, 2, 10, 2),
    Sketcher.Constraint("Horizontal", 21, 2, 24, 2),
    Sketcher.Constraint("Horizontal", 23, 2, 26, 2),
    Sketcher.Constraint("Equal", 3, 5),
    Sketcher.Constraint("Equal", 7, 9),
    Sketcher.Constraint("Equal", 23, 25),
    Sketcher.Constraint("DistanceX", 1, 1, 1, 2, Q("0.39 in")),
    Sketcher.Constraint("DistanceY", 0, 1, 0, 2, Q("0.22 in")),
    Sketcher.Constraint("DistanceX", 4, 2, 0, 2, Q("1.5 in")),
    Sketcher.Constraint("DistanceX", 0, 2, 8, 2, Q("1.5 in")),
    Sketcher.Constraint("DistanceX", 24, 2, -1, 1, Q("0.195 in")),
    Sketcher.Constraint("DistanceX", 0, 2, -1, 1, Q("72.74887 mm")),
    Sketcher.Constraint("DistanceY", 0, 2, -1, 1, Q("74.450823 mm")),
])
pocket11 = body.newObject("PartDesign::Pocket", "Pocket010")
pocket11.Profile = sketch12
pocket11.Type = "ThroughAll"
pocket11.Reversed = True

# Sketch on XZ plane
sketch13 = body.newObject("Sketcher::SketchObject", "Sketch012")
sketch13.AttachmentSupport = (doc.getObject("XZ_Plane"), [""])
sketch13.MapMode = "FlatFace"
sketch13.AttachmentOffset = App.Placement(V(0, 0, -0.19 * 25.4), App.Rotation())
sketch13.addGeometry([
    Part.LineSegment(V(-5, 99, 0), V(-5, 104, 0)),  # 0
    Part.LineSegment(V(-5, 104, 0), V(5, 104, 0)),  # 1
    Part.LineSegment(V(5, 104, 0), V(5, 99, 0)),  # 2
    Part.LineSegment(V(5, 99, 0), V(-5, 99, 0)),  # 3
    Part.LineSegment(V(-5, 78, 0), V(-5, 84, 0)),  # 4
    Part.LineSegment(V(-5, 84, 0), V(5, 84, 0)),  # 5
    Part.LineSegment(V(5, 84, 0), V(5, 78, 0)),  # 6
    Part.LineSegment(V(5, 78, 0), V(-5, 78, 0)),  # 7
], False)
sketch13.addConstraint([
    Sketcher.Constraint("Coincident", 0, 2, 1, 1),
    Sketcher.Constraint("Coincident", 1, 2, 2, 1),
    Sketcher.Constraint("Coincident", 2, 2, 3, 1),
    Sketcher.Constraint("Coincident", 3, 2, 0, 1),
    Sketcher.Constraint("Coincident", 4, 2, 5, 1),
    Sketcher.Constraint("Coincident", 5, 2, 6, 1),
    Sketcher.Constraint("Coincident", 6, 2, 7, 1),
    Sketcher.Constraint("Coincident", 7, 2, 4, 1),
    Sketcher.Constraint("Vertical", 0),
    Sketcher.Constraint("Horizontal", 1),
    Sketcher.Constraint("Vertical", 2),
    Sketcher.Constraint("Horizontal", 3),
    Sketcher.Constraint("Vertical", 4),
    Sketcher.Constraint("Horizontal", 5),
    Sketcher.Constraint("Vertical", 6),
    Sketcher.Constraint("Horizontal", 7),
    Sketcher.Constraint("Vertical", 3, 2, 4, 2),
    Sketcher.Constraint("Vertical", 2, 2, 5, 2),
    Sketcher.Constraint("Equal", 2, 4),
    Sketcher.Constraint("DistanceX", 1, 1, 1, 2, Q("0.39 in")),
    Sketcher.Constraint("DistanceY", 0, 1, 0, 2, Q("0.22 in")),
    Sketcher.Constraint("DistanceY", 4, 2, 0, 2, Q("0.8 in")),
    Sketcher.Constraint("DistanceY", -1, 1, 0, 2, Q("4.11 in")),
    Sketcher.Constraint("DistanceX", 0, 2, -1, 1, Q("0.195 in")),
])
pocket12 = body.newObject("PartDesign::Pocket", "Pocket011")
pocket12.Profile = sketch13
pocket12.Type = "ThroughAll"
pocket12.Reversed = True

# Sketch on XZ plane
sketch14 = body.newObject("Sketcher::SketchObject", "Sketch013")
sketch14.AttachmentSupport = (doc.getObject("XZ_Plane"), [""])
sketch14.MapMode = "FlatFace"
sketch14.AttachmentOffset = App.Placement(V(0, 0, -0.19 * 25.4), App.Rotation())
sketch14.addGeometry([
    Part.Circle(V(0, -56, 0), V(0, 0, 1), 3.2),
    Part.Circle(V(12.7, -56, 0), V(0, 0, 1), 3.2),
    Part.Circle(V(-12.7, -56, 0), V(0, 0, 1), 3.2),
], False)
sketch14.addConstraint([
    Sketcher.Constraint("Equal", 0, 1),
    Sketcher.Constraint("Equal", 1, 2),
    Sketcher.Constraint("Symmetric", 1, 3, 2, 3, -2),
    Sketcher.Constraint("PointOnObject", 0, 3, -2),
    Sketcher.Constraint("Horizontal", 0, 3, 1, 3),
    Sketcher.Constraint("Diameter", 0, Q("0.25 in")),
    Sketcher.Constraint("DistanceX", 2, 3, 1, 3, Q("1 in")),
    Sketcher.Constraint("DistanceY", 0, 3, -1, 1, Q("55.982012 mm")),
])
pocket13 = body.newObject("PartDesign::Pocket", "Pocket012")
pocket13.Profile = sketch14
pocket13.Type = "ThroughAll"
pocket13.Reversed = True

# Sketch on XZ plane
sketch15 = body.newObject("Sketcher::SketchObject", "Sketch014")
sketch15.AttachmentSupport = (doc.getObject("XZ_Plane"), [""])
sketch15.MapMode = "FlatFace"
sketch15.AttachmentOffset = App.Placement(V(0, 0, -0.19 * 25.4), App.Rotation())
sketch15.addGeometry([
    Part.Circle(V(-17.6, -38.2, 0), V(0, 0, 1), 1.9),
    Part.Circle(V(-58.2, -38.2, 0), V(0, 0, 1), 1.9),
    Part.Circle(V(-58.2, 12.6, 0), V(0, 0, 1), 1.9),
    Part.Circle(V(-17.6, 12.6, 0), V(0, 0, 1), 1.9),
], False)
sketch15.addConstraint([
    Sketcher.Constraint("Equal", 0, 1),
    Sketcher.Constraint("Equal", 1, 2),
    Sketcher.Constraint("Equal", 2, 3),
    Sketcher.Constraint("Horizontal", 0, 3, 1, 3),
    Sketcher.Constraint("Horizontal", 2, 3, 3, 3),
    Sketcher.Constraint("Vertical", 1, 3, 2, 3),
    Sketcher.Constraint("Vertical", 0, 3, 3, 3),
    Sketcher.Constraint("Diameter", 0, Q("0.15 in")),
    Sketcher.Constraint("DistanceY", 1, 3, 2, 3, Q("2 in")),
    Sketcher.Constraint("DistanceX", 1, 3, 0, 3, Q("1.6 in")),
    Sketcher.Constraint("DistanceY", 0, 3, -1, 1, Q("38.202012 mm")),
    Sketcher.Constraint("DistanceX", 0, 3, -1, 1, Q("17.603855 mm")),
])
pocket14 = body.newObject("PartDesign::Pocket", "Pocket013")
pocket14.Profile = sketch15
pocket14.Type = "ThroughAll"
pocket14.Reversed = True

# Sketch on XZ plane
sketch16 = body.newObject("Sketcher::SketchObject", "Sketch015")
sketch16.AttachmentSupport = (doc.getObject("XZ_Plane"), [""])
sketch16.MapMode = "FlatFace"
sketch16.AttachmentOffset = App.Placement(V(0, 0, -0.19 * 25.4), App.Rotation())
sketch16.addGeometry([
    Part.Circle(V(7.8, -28.2, 0), V(0, 0, 1), 1.9),
    Part.Circle(V(58.6, -28.2, 0), V(0, 0, 1), 1.9),
    Part.Circle(V(7.8, 12.5, 0), V(0, 0, 1), 1.9),
    Part.Circle(V(58.6, 12.5, 0), V(0, 0, 1), 1.9),
], False)
sketch16.addConstraint([
    Sketcher.Constraint("Equal", 0, 1),
    Sketcher.Constraint("Equal", 1, 2),
    Sketcher.Constraint("Equal", 2, 3),
    Sketcher.Constraint("Horizontal", 0, 3, 1, 3),
    Sketcher.Constraint("Horizontal", 2, 3, 3, 3),
    Sketcher.Constraint("Vertical", 0, 3, 2, 3),
    Sketcher.Constraint("Vertical", 1, 3, 3, 3),
    Sketcher.Constraint("Diameter", 0, Q("0.15 in")),
    Sketcher.Constraint("DistanceX", 0, 3, 1, 3, Q("2 in")),
    Sketcher.Constraint("DistanceY", 0, 3, 2, 3, Q("1.6 in")),
    Sketcher.Constraint("DistanceY", 0, 3, -1, 1, Q("28.154732 mm")),
    Sketcher.Constraint("DistanceX", -1, 1, 0, 3, Q("7.796145 mm")),
])
pocket15 = body.newObject("PartDesign::Pocket", "Pocket014")
pocket15.Profile = sketch16
pocket15.Type = "ThroughAll"
pocket15.Reversed = True

doc.recompute()
